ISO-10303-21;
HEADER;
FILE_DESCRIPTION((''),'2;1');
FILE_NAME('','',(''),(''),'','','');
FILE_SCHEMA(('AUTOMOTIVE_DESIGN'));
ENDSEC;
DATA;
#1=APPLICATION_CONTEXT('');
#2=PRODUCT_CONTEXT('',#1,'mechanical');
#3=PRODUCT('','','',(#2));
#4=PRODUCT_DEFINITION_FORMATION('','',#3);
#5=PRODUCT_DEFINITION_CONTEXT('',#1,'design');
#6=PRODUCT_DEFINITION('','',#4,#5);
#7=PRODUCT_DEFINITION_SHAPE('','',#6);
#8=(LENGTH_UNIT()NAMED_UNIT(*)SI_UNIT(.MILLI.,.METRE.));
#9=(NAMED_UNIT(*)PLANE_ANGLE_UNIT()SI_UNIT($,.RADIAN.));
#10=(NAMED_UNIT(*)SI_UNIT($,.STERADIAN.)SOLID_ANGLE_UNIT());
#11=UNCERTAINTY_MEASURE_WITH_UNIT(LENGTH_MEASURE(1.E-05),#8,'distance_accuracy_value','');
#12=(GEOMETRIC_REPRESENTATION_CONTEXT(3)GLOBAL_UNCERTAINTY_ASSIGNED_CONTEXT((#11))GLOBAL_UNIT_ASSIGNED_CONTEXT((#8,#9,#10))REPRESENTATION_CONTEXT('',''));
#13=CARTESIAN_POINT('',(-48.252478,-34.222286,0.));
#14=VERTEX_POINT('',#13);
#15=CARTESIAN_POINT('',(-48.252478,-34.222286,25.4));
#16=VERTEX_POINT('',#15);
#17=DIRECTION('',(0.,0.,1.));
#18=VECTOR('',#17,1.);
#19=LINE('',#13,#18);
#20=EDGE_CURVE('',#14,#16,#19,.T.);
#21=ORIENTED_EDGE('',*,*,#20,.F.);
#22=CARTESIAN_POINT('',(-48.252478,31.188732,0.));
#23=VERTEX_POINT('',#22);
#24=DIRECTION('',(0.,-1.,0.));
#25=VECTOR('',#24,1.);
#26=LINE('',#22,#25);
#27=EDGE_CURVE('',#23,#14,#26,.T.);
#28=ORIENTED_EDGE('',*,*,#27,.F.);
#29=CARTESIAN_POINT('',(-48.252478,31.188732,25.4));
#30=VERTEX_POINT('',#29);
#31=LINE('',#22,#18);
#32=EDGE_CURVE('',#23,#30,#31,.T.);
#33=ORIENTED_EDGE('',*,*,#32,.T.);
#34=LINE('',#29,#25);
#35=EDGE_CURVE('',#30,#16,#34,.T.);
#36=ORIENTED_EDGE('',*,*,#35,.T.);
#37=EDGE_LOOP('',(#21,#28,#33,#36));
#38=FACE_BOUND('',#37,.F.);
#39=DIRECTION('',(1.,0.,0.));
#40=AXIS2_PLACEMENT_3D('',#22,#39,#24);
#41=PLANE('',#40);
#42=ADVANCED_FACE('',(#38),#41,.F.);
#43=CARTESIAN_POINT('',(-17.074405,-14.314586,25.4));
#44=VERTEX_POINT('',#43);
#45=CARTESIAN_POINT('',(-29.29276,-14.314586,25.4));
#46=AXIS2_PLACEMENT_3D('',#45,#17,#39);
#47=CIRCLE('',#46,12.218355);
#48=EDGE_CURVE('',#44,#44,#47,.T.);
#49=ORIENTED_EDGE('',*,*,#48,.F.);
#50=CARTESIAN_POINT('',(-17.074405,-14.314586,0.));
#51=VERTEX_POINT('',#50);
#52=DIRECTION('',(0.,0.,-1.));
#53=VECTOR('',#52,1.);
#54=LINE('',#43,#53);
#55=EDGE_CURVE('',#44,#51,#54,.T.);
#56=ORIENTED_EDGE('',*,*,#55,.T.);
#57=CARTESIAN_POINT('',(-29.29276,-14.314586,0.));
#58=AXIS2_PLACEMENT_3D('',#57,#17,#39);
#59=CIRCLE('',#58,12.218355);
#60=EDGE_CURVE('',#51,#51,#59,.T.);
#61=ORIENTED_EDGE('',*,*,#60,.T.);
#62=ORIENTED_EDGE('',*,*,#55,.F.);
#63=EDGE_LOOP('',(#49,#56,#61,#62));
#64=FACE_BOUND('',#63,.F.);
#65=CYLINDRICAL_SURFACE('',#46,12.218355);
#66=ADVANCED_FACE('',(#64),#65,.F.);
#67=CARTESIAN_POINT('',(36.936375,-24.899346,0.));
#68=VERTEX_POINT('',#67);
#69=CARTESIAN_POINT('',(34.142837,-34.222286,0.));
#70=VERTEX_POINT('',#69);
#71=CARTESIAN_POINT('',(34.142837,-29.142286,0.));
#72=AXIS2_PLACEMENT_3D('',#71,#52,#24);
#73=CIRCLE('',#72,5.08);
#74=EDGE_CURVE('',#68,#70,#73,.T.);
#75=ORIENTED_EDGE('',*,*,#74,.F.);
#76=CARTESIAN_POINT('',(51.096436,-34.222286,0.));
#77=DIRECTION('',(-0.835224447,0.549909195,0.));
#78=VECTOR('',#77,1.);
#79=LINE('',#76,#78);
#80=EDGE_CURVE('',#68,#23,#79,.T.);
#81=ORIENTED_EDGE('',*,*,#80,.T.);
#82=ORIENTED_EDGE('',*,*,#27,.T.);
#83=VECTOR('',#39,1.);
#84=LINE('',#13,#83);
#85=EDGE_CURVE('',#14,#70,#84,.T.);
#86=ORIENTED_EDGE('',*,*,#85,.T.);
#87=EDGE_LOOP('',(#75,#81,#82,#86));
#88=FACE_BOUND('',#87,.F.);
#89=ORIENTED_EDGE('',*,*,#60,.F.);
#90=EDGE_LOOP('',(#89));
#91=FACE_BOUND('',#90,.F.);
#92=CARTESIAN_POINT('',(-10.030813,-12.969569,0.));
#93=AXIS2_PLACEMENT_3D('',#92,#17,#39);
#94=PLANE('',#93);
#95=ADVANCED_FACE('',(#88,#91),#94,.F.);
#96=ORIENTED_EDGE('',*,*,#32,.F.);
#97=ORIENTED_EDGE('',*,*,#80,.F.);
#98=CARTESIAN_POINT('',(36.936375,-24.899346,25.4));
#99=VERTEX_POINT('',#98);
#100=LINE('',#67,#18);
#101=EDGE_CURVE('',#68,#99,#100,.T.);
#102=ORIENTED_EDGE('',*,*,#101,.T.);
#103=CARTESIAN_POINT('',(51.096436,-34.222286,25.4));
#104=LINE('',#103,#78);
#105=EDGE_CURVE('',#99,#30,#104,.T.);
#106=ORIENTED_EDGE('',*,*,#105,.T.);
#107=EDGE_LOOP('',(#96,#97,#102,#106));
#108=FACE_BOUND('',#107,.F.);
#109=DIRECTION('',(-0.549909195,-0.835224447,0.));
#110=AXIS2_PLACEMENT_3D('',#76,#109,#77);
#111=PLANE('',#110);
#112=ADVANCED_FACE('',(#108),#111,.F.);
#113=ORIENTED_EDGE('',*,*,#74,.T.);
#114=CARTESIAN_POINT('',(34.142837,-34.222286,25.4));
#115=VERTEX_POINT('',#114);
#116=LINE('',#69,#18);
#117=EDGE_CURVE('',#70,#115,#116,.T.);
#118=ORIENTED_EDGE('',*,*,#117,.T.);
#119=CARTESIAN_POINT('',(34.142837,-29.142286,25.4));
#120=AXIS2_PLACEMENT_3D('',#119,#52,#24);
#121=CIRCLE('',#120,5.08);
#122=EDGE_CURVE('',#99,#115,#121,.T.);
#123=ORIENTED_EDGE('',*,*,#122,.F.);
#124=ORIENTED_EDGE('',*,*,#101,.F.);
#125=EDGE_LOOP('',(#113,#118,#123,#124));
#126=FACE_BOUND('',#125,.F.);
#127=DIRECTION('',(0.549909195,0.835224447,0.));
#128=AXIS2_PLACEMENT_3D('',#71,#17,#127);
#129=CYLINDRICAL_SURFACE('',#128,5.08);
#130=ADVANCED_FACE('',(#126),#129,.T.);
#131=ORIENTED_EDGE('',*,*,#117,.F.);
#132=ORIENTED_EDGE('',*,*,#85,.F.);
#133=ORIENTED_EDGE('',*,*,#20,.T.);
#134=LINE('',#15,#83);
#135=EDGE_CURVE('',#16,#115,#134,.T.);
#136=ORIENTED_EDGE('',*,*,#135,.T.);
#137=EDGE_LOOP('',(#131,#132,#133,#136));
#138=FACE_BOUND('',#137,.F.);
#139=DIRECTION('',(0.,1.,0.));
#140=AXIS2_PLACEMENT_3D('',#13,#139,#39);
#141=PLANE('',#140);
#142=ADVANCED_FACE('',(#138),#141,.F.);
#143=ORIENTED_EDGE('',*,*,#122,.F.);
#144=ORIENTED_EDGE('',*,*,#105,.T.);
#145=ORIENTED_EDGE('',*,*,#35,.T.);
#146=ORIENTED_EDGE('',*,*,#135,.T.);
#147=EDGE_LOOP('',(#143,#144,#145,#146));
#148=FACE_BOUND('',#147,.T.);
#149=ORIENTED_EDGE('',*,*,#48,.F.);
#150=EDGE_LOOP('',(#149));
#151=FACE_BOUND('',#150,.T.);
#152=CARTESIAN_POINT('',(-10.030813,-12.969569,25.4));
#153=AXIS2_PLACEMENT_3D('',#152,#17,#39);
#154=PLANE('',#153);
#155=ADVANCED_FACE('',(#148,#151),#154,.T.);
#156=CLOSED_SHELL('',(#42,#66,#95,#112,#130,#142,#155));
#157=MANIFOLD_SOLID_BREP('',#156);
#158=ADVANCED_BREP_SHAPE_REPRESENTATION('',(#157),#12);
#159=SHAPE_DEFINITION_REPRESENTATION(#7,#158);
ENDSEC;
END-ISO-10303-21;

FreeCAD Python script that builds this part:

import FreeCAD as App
import Part
import Sketcher
Q = App.Units.Quantity


def edges_at(feature, points):
    """Names of the edges that pass closest to the given points."""
    edges = feature.Shape.Edges
    near = lambda p: min(range(len(edges)), key=lambda i: edges[i].distToShape(Part.Vertex(*p))[0])
    return sorted({f"Edge{near(p) + 1}" for p in points})

doc = App.newDocument("Part")
params = doc.addObject("Spreadsheet::Sheet", "Params")
for row, (alias, value) in enumerate([
    ("pad1_length", "1 in"),
    ("fillet_radius", "0.2 in"),
    ("pocket1_length", "1 in"),
], start=1):
    params.set(f"A{row}", alias)
    params.set(f"B{row}", "=" + value)
    params.setAlias(f"B{row}", alias)

body = doc.addObject("PartDesign::Body", "Body")

# Sketch on XY plane
sketch1 = body.newObject("Sketcher::SketchObject", "Sketch")
sketch1.AttachmentSupport = (doc.getObject("XY_Plane"), [""])
sketch1.MapMode = "FlatFace"
sketch1.addGeometry(Part.LineSegment(App.Vector(51.096436, -34.222286, 0), App.Vector(-48.252478, 31.188732, 0)), False)
sketch1.addGeometry(Part.LineSegment(App.Vector(-48.252478, 31.188732, 0), App.Vector(-48.252478, -34.222286, 0)), False)
sketch1.addGeometry(Part.LineSegment(App.Vector(-48.252478, -34.222286, 0), App.Vector(51.096436, -34.222286, 0)), False)
sketch1.addConstraint(Sketcher.Constraint("Coincident", 0, 2, 1, 1))
sketch1.addConstraint(Sketcher.Constraint("Coincident", 1, 2, 2, 1))
sketch1.addConstraint(Sketcher.Constraint("Coincident", 2, 2, 0, 1))
sketch1.addConstraint(Sketcher.Constraint("Vertical", 1))
sketch1.addConstraint(Sketcher.Constraint("Horizontal", 2))
sketch1.addConstraint(Sketcher.Constraint("DistanceY", 1, 2, 1, 1, Q("65.411018 mm")))
sketch1.addConstraint(Sketcher.Constraint("DistanceX", 2, 1, 2, 2, Q("99.348914 mm")))
sketch1.addConstraint(Sketcher.Constraint("DistanceX", 0, 2, -1, 1, Q("48.252478 mm")))
sketch1.addConstraint(Sketcher.Constraint("DistanceY", -1, 1, 0, 2, Q("31.188732 mm")))
pad1 = body.newObject("PartDesign::Pad", "Pad")
pad1.Profile = sketch1
pad1.setExpression("Length", "Params.pad1_length")
doc.recompute()

fillet = body.newObject("PartDesign::Fillet", "Fillet")
fillet.Base = (pad1, edges_at(pad1, [(51.096, -34.222, 12.7)]))
fillet.setExpression("Radius", "Params.fillet_radius")

# Sketch on XY plane
sketch2 = body.newObject("Sketcher::SketchObject", "Sketch001")
sketch2.AttachmentSupport = (doc.getObject("XY_Plane"), [""])
sketch2.MapMode = "FlatFace"
sketch2.AttachmentOffset = App.Placement(App.Vector(0, 0, 1 * 25.4), App.Rotation())
sketch2.addGeometry(Part.Circle(App.Vector(-29.29276, -14.314586, 0), App.Vector(0, 0, 1), 12.218355), False)
sketch2.addConstraint(Sketcher.Constraint("Diameter", 0, Q("24.43671 mm")))
sketch2.addConstraint(Sketcher.Constraint("DistanceX", 0, 3, -1, 1, Q("29.29276 mm")))
sketch2.addConstraint(Sketcher.Constraint("DistanceY", 0, 3, -1, 1, Q("14.314586 mm")))
pocket1 = body.newObject("PartDesign::Pocket", "Pocket")
pocket1.Profile = sketch2
pocket1.setExpression("Length", "Params.pocket1_length")

doc.recompute()
